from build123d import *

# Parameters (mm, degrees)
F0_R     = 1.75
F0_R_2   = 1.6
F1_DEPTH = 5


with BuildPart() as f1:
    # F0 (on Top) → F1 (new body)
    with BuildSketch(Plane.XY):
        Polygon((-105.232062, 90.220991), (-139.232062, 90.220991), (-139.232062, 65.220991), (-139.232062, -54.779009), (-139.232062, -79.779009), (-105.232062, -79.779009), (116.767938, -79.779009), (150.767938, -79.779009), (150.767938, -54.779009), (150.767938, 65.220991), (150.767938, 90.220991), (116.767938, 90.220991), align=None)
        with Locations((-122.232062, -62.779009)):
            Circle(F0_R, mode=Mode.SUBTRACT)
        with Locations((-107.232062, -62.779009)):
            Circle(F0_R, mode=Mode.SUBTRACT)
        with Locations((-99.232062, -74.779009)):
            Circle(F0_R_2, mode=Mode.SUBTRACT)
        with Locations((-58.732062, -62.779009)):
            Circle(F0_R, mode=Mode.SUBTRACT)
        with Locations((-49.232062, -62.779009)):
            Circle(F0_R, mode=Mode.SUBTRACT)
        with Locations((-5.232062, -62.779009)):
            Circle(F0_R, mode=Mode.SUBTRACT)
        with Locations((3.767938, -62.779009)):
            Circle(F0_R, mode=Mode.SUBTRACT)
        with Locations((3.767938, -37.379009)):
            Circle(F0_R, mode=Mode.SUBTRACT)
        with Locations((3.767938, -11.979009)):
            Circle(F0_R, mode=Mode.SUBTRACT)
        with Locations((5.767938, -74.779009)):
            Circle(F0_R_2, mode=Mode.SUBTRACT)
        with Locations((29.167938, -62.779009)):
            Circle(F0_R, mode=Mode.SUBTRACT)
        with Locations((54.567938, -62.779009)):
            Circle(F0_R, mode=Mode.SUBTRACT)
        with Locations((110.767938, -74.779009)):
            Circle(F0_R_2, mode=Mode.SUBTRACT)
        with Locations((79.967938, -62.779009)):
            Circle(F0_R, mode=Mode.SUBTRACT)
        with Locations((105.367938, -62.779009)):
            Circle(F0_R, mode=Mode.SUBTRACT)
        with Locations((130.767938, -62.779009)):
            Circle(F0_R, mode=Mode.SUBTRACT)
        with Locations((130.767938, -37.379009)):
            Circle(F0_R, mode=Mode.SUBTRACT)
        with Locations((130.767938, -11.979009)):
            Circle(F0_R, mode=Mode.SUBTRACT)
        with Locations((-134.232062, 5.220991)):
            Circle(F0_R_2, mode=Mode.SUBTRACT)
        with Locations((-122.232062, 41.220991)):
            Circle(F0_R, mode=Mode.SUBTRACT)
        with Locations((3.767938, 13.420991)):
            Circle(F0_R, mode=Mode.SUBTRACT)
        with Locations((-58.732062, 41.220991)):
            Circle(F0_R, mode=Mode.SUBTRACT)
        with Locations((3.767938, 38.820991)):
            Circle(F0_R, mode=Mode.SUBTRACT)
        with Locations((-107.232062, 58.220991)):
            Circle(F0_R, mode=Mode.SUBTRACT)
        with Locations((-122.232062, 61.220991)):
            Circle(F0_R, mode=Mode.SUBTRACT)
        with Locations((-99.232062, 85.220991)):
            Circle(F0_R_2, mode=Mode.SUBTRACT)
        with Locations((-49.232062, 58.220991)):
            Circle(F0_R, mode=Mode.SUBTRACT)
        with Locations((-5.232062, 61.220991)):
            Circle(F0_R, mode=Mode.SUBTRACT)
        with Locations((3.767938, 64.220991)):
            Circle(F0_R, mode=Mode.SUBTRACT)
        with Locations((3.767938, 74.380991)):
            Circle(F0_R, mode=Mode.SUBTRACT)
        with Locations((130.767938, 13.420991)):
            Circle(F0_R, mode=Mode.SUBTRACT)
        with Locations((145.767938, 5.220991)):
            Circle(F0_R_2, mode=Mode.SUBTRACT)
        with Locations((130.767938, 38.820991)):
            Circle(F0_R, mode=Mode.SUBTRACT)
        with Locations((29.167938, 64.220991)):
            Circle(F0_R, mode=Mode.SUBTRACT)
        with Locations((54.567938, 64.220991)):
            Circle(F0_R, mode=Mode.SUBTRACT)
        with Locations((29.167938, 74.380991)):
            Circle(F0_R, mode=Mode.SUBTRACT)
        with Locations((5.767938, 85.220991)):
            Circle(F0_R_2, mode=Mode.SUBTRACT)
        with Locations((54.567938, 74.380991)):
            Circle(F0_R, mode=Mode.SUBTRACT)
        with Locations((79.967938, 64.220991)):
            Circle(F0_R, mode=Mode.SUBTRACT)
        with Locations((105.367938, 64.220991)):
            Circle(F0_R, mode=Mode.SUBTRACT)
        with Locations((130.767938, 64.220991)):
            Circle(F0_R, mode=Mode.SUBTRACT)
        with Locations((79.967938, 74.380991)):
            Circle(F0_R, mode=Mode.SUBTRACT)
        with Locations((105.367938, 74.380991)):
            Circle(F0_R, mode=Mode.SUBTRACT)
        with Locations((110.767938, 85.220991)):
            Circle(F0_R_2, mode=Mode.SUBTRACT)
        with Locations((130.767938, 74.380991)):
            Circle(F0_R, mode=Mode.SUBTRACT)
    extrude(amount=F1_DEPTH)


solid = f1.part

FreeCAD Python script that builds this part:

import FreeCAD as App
import Part
import Sketcher
Q = App.Units.Quantity

doc = App.newDocument("Part")
params = doc.addObject("Spreadsheet::Sheet", "Params")
for row, (alias, value) in enumerate([
    ("sketch1_diameter", "3.5 mm"),
    ("sketch1_diameter2", "3.2 mm"),
    ("sketch1_width", "290 mm"),
    ("sketch1_height", "170 mm"),
    ("pad1_length", "5 mm"),
], start=1):
    params.set(f"A{row}", alias)
    params.set(f"B{row}", "=" + value)
    params.setAlias(f"B{row}", alias)

body = doc.addObject("PartDesign::Body", "Body")

# Sketch on XY plane
sketch1 = body.newObject("Sketcher::SketchObject", "Sketch")
sketch1.AttachmentSupport = (doc.getObject("XY_Plane"), [""])
sketch1.MapMode = "FlatFace"
sketch1.addGeometry(Part.LineSegment(App.Vector(-139.2, 90.2, 0), App.Vector(-139.2, -79.8, 0)), False)
sketch1.addGeometry(Part.LineSegment(App.Vector(-139.2, -79.8, 0), App.Vector(150.8, -79.8, 0)), False)
sketch1.addGeometry(Part.LineSegment(App.Vector(150.8, -79.8, 0), App.Vector(150.8, 90.2, 0)), False)
sketch1.addGeometry(Part.LineSegment(App.Vector(150.8, 90.2, 0), App.Vector(-139.2, 90.2, 0)), False)
sketch1.addGeometry(Part.Circle(App.Vector(-122.2, -62.8, 0), App.Vector(0, 0, 1), 1.8), False)
sketch1.addGeometry(Part.Circle(App.Vector(-107.2, -62.8, 0), App.Vector(0, 0, 1), 1.8), False)
sketch1.addGeometry(Part.Circle(App.Vector(-99.2, -74.8, 0), App.Vector(0, 0, 1), 1.6), False)
sketch1.addGeometry(Part.Circle(App.Vector(-58.7, -62.8, 0), App.Vector(0, 0, 1), 1.8), False)
sketch1.addGeometry(Part.Circle(App.Vector(-49.2, -62.8, 0), App.Vector(0, 0, 1), 1.8), False)
sketch1.addGeometry(Part.Circle(App.Vector(-5.2, -62.8, 0), App.Vector(0, 0, 1), 1.8), False)
sketch1.addGeometry(Part.Circle(App.Vector(3.8, -62.8, 0), App.Vector(0, 0, 1), 1.8), False)
sketch1.addGeometry(Part.Circle(App.Vector(3.8, -37.4, 0), App.Vector(0, 0, 1), 1.8), False)
sketch1.addGeometry(Part.Circle(App.Vector(3.8, -12, 0), App.Vector(0, 0, 1), 1.8), False)
sketch1.addGeometry(Part.Circle(App.Vector(5.8, -74.8, 0), App.Vector(0, 0, 1), 1.6), False)
sketch1.addGeometry(Part.Circle(App.Vector(29.2, -62.8, 0), App.Vector(0, 0, 1), 1.8), False)
sketch1.addGeometry(Part.Circle(App.Vector(54.6, -62.8, 0), App.Vector(0, 0, 1), 1.8), False)
sketch1.addGeometry(Part.Circle(App.Vector(110.8, -74.8, 0), App.Vector(0, 0, 1), 1.6), False)
sketch1.addGeometry(Part.Circle(App.Vector(80, -62.8, 0), App.Vector(0, 0, 1), 1.8), False)
sketch1.addGeometry(Part.Circle(App.Vector(105.4, -62.8, 0), App.Vector(0, 0, 1), 1.8), False)
sketch1.addGeometry(Part.Circle(App.Vector(130.8, -62.8, 0), App.Vector(0, 0, 1), 1.8), False)
sketch1.addGeometry(Part.Circle(App.Vector(130.8, -37.4, 0), App.Vector(0, 0, 1), 1.8), False)
sketch1.addGeometry(Part.Circle(App.Vector(130.8, -12, 0), App.Vector(0, 0, 1), 1.8), False)
sketch1.addGeometry(Part.Circle(App.Vector(-134.2, 5.2, 0), App.Vector(0, 0, 1), 1.6), False)
sketch1.addGeometry(Part.Circle(App.Vector(-122.2, 41.2, 0), App.Vector(0, 0, 1), 1.8), False)
sketch1.addGeometry(Part.Circle(App.Vector(3.8, 13.4, 0), App.Vector(0, 0, 1), 1.8), False)
sketch1.addGeometry(Part.Circle(App.Vector(-58.7, 41.2, 0), App.Vector(0, 0, 1), 1.8), False)
sketch1.addGeometry(Part.Circle(App.Vector(3.8, 38.8, 0), App.Vector(0, 0, 1), 1.8), False)
sketch1.addGeometry(Part.Circle(App.Vector(-122.2, 61.2, 0), App.Vector(0, 0, 1), 1.8), False)
sketch1.addGeometry(Part.Circle(App.Vector(-107.2, 58.2, 0), App.Vector(0, 0, 1), 1.8), False)
sketch1.addGeometry(Part.Circle(App.Vector(-99.2, 85.2, 0), App.Vector(0, 0, 1), 1.6), False)
sketch1.addGeometry(Part.Circle(App.Vector(-49.2, 58.2, 0), App.Vector(0, 0, 1), 1.8), False)
sketch1.addGeometry(Part.Circle(App.Vector(-5.2, 61.2, 0), App.Vector(0, 0, 1), 1.8), False)
sketch1.addGeometry(Part.Circle(App.Vector(3.8, 64.2, 0), App.Vector(0, 0, 1), 1.8), False)
sketch1.addGeometry(Part.Circle(App.Vector(3.8, 74.4, 0), App.Vector(0, 0, 1), 1.8), False)
sketch1.addGeometry(Part.Circle(App.Vector(145.8, 5.2, 0), App.Vector(0, 0, 1), 1.6), False)
sketch1.addGeometry(Part.Circle(App.Vector(130.8, 13.4, 0), App.Vector(0, 0, 1), 1.8), False)
sketch1.addGeometry(Part.Circle(App.Vector(130.8, 38.8, 0), App.Vector(0, 0, 1), 1.8), False)
sketch1.addGeometry(Part.Circle(App.Vector(29.2, 64.2, 0), App.Vector(0, 0, 1), 1.8), False)
sketch1.addGeometry(Part.Circle(App.Vector(54.6, 64.2, 0), App.Vector(0, 0, 1), 1.8), False)
sketch1.addGeometry(Part.Circle(App.Vector(29.2, 74.4, 0), App.Vector(0, 0, 1), 1.8), False)
sketch1.addGeometry(Part.Circle(App.Vector(5.8, 85.2, 0), App.Vector(0, 0, 1), 1.6), False)
sketch1.addGeometry(Part.Circle(App.Vector(54.6, 74.4, 0), App.Vector(0, 0, 1), 1.8), False)
sketch1.addGeometry(Part.Circle(App.Vector(80, 64.2, 0), App.Vector(0, 0, 1), 1.8), False)
sketch1.addGeometry(Part.Circle(App.Vector(105.4, 64.2, 0), App.Vector(0, 0, 1), 1.8), False)
sketch1.addGeometry(Part.Circle(App.Vector(130.8, 64.2, 0), App.Vector(0, 0, 1), 1.8), False)
sketch1.addGeometry(Part.Circle(App.Vector(80, 74.4, 0), App.Vector(0, 0, 1), 1.8), False)
sketch1.addGeometry(Part.Circle(App.Vector(105.4, 74.4, 0), App.Vector(0, 0, 1), 1.8), False)
sketch1.addGeometry(Part.Circle(App.Vector(110.8, 85.2, 0), App.Vector(0, 0, 1), 1.6), False)
sketch1.addGeometry(Part.Circle(App.Vector(130.8, 74.4, 0), App.Vector(0, 0, 1), 1.8), False)
sketch1.addConstraint(Sketcher.Constraint("Coincident", 0, 2, 1, 1))
sketch1.addConstraint(Sketcher.Constraint("Coincident", 1, 2, 2, 1))
sketch1.addConstraint(Sketcher.Constraint("Coincident", 2, 2, 3, 1))
sketch1.addConstraint(Sketcher.Constraint("Coincident", 3, 2, 0, 1))
sketch1.addConstraint(Sketcher.Constraint("Vertical", 0))
sketch1.addConstraint(Sketcher.Constraint("Horizontal", 1))
sketch1.addConstraint(Sketcher.Constraint("Vertical", 2))
sketch1.addConstraint(Sketcher.Constraint("Horizontal", 3))
sketch1.addConstraint(Sketcher.Constraint("Equal", 4, 5))
sketch1.addConstraint(Sketcher.Constraint("Equal", 5, 7))
sketch1.addConstraint(Sketcher.Constraint("Equal", 7, 8))
sketch1.addConstraint(Sketcher.Constraint("Equal", 8, 9))
sketch1.addConstraint(Sketcher.Constraint("Equal", 9, 10))
sketch1.addConstraint(Sketcher.Constraint("Equal", 10, 11))
sketch1.addConstraint(Sketcher.Constraint("Equal", 11, 12))
sketch1.addConstraint(Sketcher.Constraint("Equal", 6, 13))
sketch1.addConstraint(Sketcher.Constraint("Equal", 12, 14))
sketch1.addConstraint(Sketcher.Constraint("Equal", 14, 15))
sketch1.addConstraint(Sketcher.Constraint("Equal", 13, 16))
sketch1.addConstraint(Sketcher.Constraint("Equal", 15, 17))
sketch1.addConstraint(Sketcher.Constraint("Equal", 17, 18))
sketch1.addConstraint(Sketcher.Constraint("Equal", 18, 19))
sketch1.addConstraint(Sketcher.Constraint("Equal", 19, 20))
sketch1.addConstraint(Sketcher.Constraint("Equal", 20, 21))
sketch1.addConstraint(Sketcher.Constraint("Equal", 16, 22))
sketch1.addConstraint(Sketcher.Constraint("Equal", 21, 23))
sketch1.addConstraint(Sketcher.Constraint("Equal", 23, 24))
sketch1.addConstraint(Sketcher.Constraint("Equal", 24, 25))
sketch1.addConstraint(Sketcher.Constraint("Equal", 25, 26))
sketch1.addConstraint(Sketcher.Constraint("Equal", 26, 27))
sketch1.addConstraint(Sketcher.Constraint("Equal", 27, 28))
sketch1.addConstraint(Sketcher.Constraint("Equal", 22, 29))
sketch1.addConstraint(Sketcher.Constraint("Equal", 28, 30))
sketch1.addConstraint(Sketcher.Constraint("Equal", 30, 31))
sketch1.addConstraint(Sketcher.Constraint("Equal", 31, 32))
sketch1.addConstraint(Sketcher.Constraint("Equal", 32, 33))
sketch1.addConstraint(Sketcher.Constraint("Equal", 29, 34))
sketch1.addConstraint(Sketcher.Constraint("Equal", 33, 35))
sketch1.addConstraint(Sketcher.Constraint("Equal", 35, 36))
sketch1.addConstraint(Sketcher.Constraint("Equal", 36, 37))
sketch1.addConstraint(Sketcher.Constraint("Equal", 37, 38))
sketch1.addConstraint(Sketcher.Constraint("Equal", 38, 39))
sketch1.addConstraint(Sketcher.Constraint("Equal", 34, 40))
sketch1.addConstraint(Sketcher.Constraint("Equal", 39, 41))
sketch1.addConstraint(Sketcher.Constraint("Equal", 41, 42))
sketch1.addConstraint(Sketcher.Constraint("Equal", 42, 43))
sketch1.addConstraint(Sketcher.Constraint("Equal", 43, 44))
sketch1.addConstraint(Sketcher.Constraint("Equal", 44, 45))
sketch1.addConstraint(Sketcher.Constraint("Equal", 45, 46))
sketch1.addConstraint(Sketcher.Constraint("Equal", 40, 47))
sketch1.addConstraint(Sketcher.Constraint("Equal", 46, 48))
sketch1.addConstraint(Sketcher.Constraint("Horizontal", 4, 3, 5, 3))
sketch1.addConstraint(Sketcher.Constraint("Horizontal", 5, 3, 7, 3))
sketch1.addConstraint(Sketcher.Constraint("Horizontal", 7, 3, 8, 3))
sketch1.addConstraint(Sketcher.Constraint("Horizontal", 8, 3, 9, 3))
sketch1.addConstraint(Sketcher.Constraint("Horizontal", 9, 3, 10, 3))
sketch1.addConstraint(Sketcher.Constraint("Horizontal", 6, 3, 13, 3))
sketch1.addConstraint(Sketcher.Constraint("Horizontal", 10, 3, 14, 3))
sketch1.addConstraint(Sketcher.Constraint("Horizontal", 14, 3, 15, 3))
sketch1.addConstraint(Sketcher.Constraint("Horizontal", 13, 3, 16, 3))
sketch1.addConstraint(Sketcher.Constraint("Horizontal", 15, 3, 17, 3))
sketch1.addConstraint(Sketcher.Constraint("Horizontal", 17, 3, 18, 3))
sketch1.addConstraint(Sketcher.Constraint("Horizontal", 18, 3, 19, 3))
sketch1.addConstraint(Sketcher.Constraint("Horizontal", 11, 3, 20, 3))
sketch1.addConstraint(Sketcher.Constraint("Horizontal", 12, 3, 21, 3))
sketch1.addConstraint(Sketcher.Constraint("Horizontal", 23, 3, 25, 3))
sketch1.addConstraint(Sketcher.Constraint("Horizontal", 28, 3, 30, 3))
sketch1.addConstraint(Sketcher.Constraint("Horizontal", 27, 3, 31, 3))
sketch1.addConstraint(Sketcher.Constraint("Horizontal", 22, 3, 34, 3))
sketch1.addConstraint(Sketcher.Constraint("Horizontal", 24, 3, 35, 3))
sketch1.addConstraint(Sketcher.Constraint("Horizontal", 26, 3, 36, 3))
sketch1.addConstraint(Sketcher.Constraint("Horizontal", 32, 3, 37, 3))
sketch1.addConstraint(Sketcher.Constraint("Horizontal", 37, 3, 38, 3))
sketch1.addConstraint(Sketcher.Constraint("Horizontal", 33, 3, 39, 3))
sketch1.addConstraint(Sketcher.Constraint("Horizontal", 29, 3, 40, 3))
sketch1.addConstraint(Sketcher.Constraint("Horizontal", 39, 3, 41, 3))
sketch1.addConstraint(Sketcher.Constraint("Horizontal", 38, 3, 42, 3))
sketch1.addConstraint(Sketcher.Constraint("Horizontal", 42, 3, 43, 3))
sketch1.addConstraint(Sketcher.Constraint("Horizontal", 43, 3, 44, 3))
sketch1.addConstraint(Sketcher.Constraint("Horizontal", 41, 3, 45, 3))
sketch1.addConstraint(Sketcher.Constraint("Horizontal", 45, 3, 46, 3))
sketch1.addConstraint(Sketcher.Constraint("Horizontal", 40, 3, 47, 3))
sketch1.addConstraint(Sketcher.Constraint("Horizontal", 46, 3, 48, 3))
sketch1.addConstraint(Sketcher.Constraint("Vertical", 10, 3, 11, 3))
sketch1.addConstraint(Sketcher.Constraint("Vertical", 11, 3, 12, 3))
sketch1.addConstraint(Sketcher.Constraint("Vertical", 19, 3, 20, 3))
sketch1.addConstraint(Sketcher.Constraint("Vertical", 20, 3, 21, 3))
sketch1.addConstraint(Sketcher.Constraint("Vertical", 4, 3, 23, 3))
sketch1.addConstraint(Sketcher.Constraint("Vertical", 12, 3, 24, 3))
sketch1.addConstraint(Sketcher.Constraint("Vertical", 7, 3, 25, 3))
sketch1.addConstraint(Sketcher.Constraint("Vertical", 24, 3, 26, 3))
sketch1.addConstraint(Sketcher.Constraint("Vertical", 23, 3, 27, 3))
sketch1.addConstraint(Sketcher.Constraint("Vertical", 5, 3, 28, 3))
sketch1.addConstraint(Sketcher.Constraint("Vertical", 6, 3, 29, 3))
sketch1.addConstraint(Sketcher.Constraint("Vertical", 8, 3, 30, 3))
sketch1.addConstraint(Sketcher.Constraint("Vertical", 9, 3, 31, 3))
sketch1.addConstraint(Sketcher.Constraint("Vertical", 26, 3, 32, 3))
sketch1.addConstraint(Sketcher.Constraint("Vertical", 32, 3, 33, 3))
sketch1.addConstraint(Sketcher.Constraint("Vertical", 21, 3, 35, 3))
sketch1.addConstraint(Sketcher.Constraint("Vertical", 35, 3, 36, 3))
sketch1.addConstraint(Sketcher.Constraint("Vertical", 14, 3, 37, 3))
sketch1.addConstraint(Sketcher.Constraint("Vertical", 15, 3, 38, 3))
sketch1.addConstraint(Sketcher.Constraint("Vertical", 37, 3, 39, 3))
sketch1.addConstraint(Sketcher.Constraint("Vertical", 13, 3, 40, 3))
sketch1.addConstraint(Sketcher.Constraint("Vertical", 38, 3, 41, 3))
sketch1.addConstraint(Sketcher.Constraint("Vertical", 17, 3, 42, 3))
sketch1.addConstraint(Sketcher.Constraint("Vertical", 18, 3, 43, 3))
sketch1.addConstraint(Sketcher.Constraint("Vertical", 36, 3, 44, 3))
sketch1.addConstraint(Sketcher.Constraint("Vertical", 42, 3, 45, 3))
sketch1.addConstraint(Sketcher.Constraint("Vertical", 43, 3, 46, 3))
sketch1.addConstraint(Sketcher.Constraint("Vertical", 16, 3, 47, 3))
sketch1.addConstraint(Sketcher.Constraint("Vertical", 44, 3, 48, 3))
sketch1.addConstraint(Sketcher.Constraint("Diameter", 4, Q("3.5 mm")))
sketch1.addConstraint(Sketcher.Constraint("Diameter", 6, Q("3.2 mm")))
sketch1.addConstraint(Sketcher.Constraint("DistanceX", 1, 1, 1, 2, Q("290 mm")))
sketch1.addConstraint(Sketcher.Constraint("DistanceY", 0, 2, 0, 1, Q("170 mm")))
sketch1.addConstraint(Sketcher.Constraint("DistanceX", 4, 3, 5, 3, Q("15 mm")))
sketch1.addConstraint(Sketcher.Constraint("DistanceX", 5, 3, 6, 3, Q("8 mm")))
sketch1.addConstraint(Sketcher.Constraint("DistanceY", 6, 3, 5, 3, Q("12 mm")))
sketch1.addConstraint(Sketcher.Constraint("DistanceX", 6, 3, 8, 3, Q("50 mm")))
sketch1.addConstraint(Sketcher.Constraint("DistanceX", 8, 3, 9, 3, Q("44 mm")))
sketch1.addConstraint(Sketcher.Constraint("DistanceX", 9, 3, 10, 3, Q("9 mm")))
sketch1.addConstraint(Sketcher.Constraint("DistanceX", 10, 3, 13, 3, Q("2 mm")))
sketch1.addConstraint(Sketcher.Constraint("DistanceX", 13, 3, 16, 3, Q("105 mm")))
sketch1.addConstraint(Sketcher.Constraint("DistanceX", 16, 3, 19, 3, Q("20 mm")))
sketch1.addConstraint(Sketcher.Constraint("DistanceX", 22, 3, 4, 3, Q("12 mm")))
sketch1.addConstraint(Sketcher.Constraint("DistanceY", 4, 3, 22, 3, Q("68 mm")))
sketch1.addConstraint(Sketcher.Constraint("DistanceY", 22, 3, 23, 3, Q("36 mm")))
sketch1.addConstraint(Sketcher.Constraint("DistanceY", 23, 3, 27, 3, Q("20 mm")))
sketch1.addConstraint(Sketcher.Constraint("DistanceY", 28, 3, 27, 3, Q("3 mm")))
sketch1.addConstraint(Sketcher.Constraint("DistanceY", 28, 3, 29, 3, Q("27 mm")))
sketch1.addConstraint(Sketcher.Constraint("DistanceY", 31, 3, 32, 3, Q("3 mm")))
sketch1.addConstraint(Sketcher.Constraint("DistanceX", 21, 3, 34, 3, Q("15 mm")))
sketch1.addConstraint(Sketcher.Constraint("DistanceX", 0, 2, 4, 3, Q("17 mm")))
sketch1.addConstraint(Sketcher.Constraint("DistanceY", 0, 2, 4, 3, Q("17 mm")))
sketch1.addConstraint(Sketcher.Constraint("DistanceX", 6, 3, 7, 3, Q("40.5 mm")))
sketch1.addConstraint(Sketcher.Constraint("DistanceY", 10, 3, 11, 3, Q("25.4 mm")))
sketch1.addConstraint(Sketcher.Constraint("DistanceY", 11, 3, 12, 3, Q("25.4 mm")))
sketch1.addConstraint(Sketcher.Constraint("DistanceX", 10, 3, 14, 3, Q("25.4 mm")))
sketch1.addConstraint(Sketcher.Constraint("DistanceX", 14, 3, 15, 3, Q("25.4 mm")))
sketch1.addConstraint(Sketcher.Constraint("DistanceX", 15, 3, 17, 3, Q("25.4 mm")))
sketch1.addConstraint(Sketcher.Constraint("DistanceX", 18, 3, 16, 3, Q("5.4 mm")))
sketch1.addConstraint(Sketcher.Constraint("DistanceY", 12, 3, 24, 3, Q("25.4 mm")))
sketch1.addConstraint(Sketcher.Constraint("DistanceY", 24, 3, 26, 3, Q("25.4 mm")))
sketch1.addConstraint(Sketcher.Constraint("DistanceY", 32, 3, 33, 3, Q("10.16 mm")))
sketch1.addConstraint(Sketcher.Constraint("DistanceX", 4, 3, -1, 1, Q("122.232062 mm")))
sketch1.addConstraint(Sketcher.Constraint("DistanceY", 4, 3, -1, 1, Q("62.779009 mm")))
sketch1.setExpression("Constraints[112]", "Params.sketch1_diameter")
sketch1.setExpression("Constraints[113]", "Params.sketch1_diameter2")
sketch1.setExpression("Constraints[114]", "Params.sketch1_width")
sketch1.setExpression("Constraints[115]", "Params.sketch1_height")
pad1 = body.newObject("PartDesign::Pad", "Pad")
pad1.Profile = sketch1
pad1.setExpression("Length", "Params.pad1_length")

doc.recompute()
